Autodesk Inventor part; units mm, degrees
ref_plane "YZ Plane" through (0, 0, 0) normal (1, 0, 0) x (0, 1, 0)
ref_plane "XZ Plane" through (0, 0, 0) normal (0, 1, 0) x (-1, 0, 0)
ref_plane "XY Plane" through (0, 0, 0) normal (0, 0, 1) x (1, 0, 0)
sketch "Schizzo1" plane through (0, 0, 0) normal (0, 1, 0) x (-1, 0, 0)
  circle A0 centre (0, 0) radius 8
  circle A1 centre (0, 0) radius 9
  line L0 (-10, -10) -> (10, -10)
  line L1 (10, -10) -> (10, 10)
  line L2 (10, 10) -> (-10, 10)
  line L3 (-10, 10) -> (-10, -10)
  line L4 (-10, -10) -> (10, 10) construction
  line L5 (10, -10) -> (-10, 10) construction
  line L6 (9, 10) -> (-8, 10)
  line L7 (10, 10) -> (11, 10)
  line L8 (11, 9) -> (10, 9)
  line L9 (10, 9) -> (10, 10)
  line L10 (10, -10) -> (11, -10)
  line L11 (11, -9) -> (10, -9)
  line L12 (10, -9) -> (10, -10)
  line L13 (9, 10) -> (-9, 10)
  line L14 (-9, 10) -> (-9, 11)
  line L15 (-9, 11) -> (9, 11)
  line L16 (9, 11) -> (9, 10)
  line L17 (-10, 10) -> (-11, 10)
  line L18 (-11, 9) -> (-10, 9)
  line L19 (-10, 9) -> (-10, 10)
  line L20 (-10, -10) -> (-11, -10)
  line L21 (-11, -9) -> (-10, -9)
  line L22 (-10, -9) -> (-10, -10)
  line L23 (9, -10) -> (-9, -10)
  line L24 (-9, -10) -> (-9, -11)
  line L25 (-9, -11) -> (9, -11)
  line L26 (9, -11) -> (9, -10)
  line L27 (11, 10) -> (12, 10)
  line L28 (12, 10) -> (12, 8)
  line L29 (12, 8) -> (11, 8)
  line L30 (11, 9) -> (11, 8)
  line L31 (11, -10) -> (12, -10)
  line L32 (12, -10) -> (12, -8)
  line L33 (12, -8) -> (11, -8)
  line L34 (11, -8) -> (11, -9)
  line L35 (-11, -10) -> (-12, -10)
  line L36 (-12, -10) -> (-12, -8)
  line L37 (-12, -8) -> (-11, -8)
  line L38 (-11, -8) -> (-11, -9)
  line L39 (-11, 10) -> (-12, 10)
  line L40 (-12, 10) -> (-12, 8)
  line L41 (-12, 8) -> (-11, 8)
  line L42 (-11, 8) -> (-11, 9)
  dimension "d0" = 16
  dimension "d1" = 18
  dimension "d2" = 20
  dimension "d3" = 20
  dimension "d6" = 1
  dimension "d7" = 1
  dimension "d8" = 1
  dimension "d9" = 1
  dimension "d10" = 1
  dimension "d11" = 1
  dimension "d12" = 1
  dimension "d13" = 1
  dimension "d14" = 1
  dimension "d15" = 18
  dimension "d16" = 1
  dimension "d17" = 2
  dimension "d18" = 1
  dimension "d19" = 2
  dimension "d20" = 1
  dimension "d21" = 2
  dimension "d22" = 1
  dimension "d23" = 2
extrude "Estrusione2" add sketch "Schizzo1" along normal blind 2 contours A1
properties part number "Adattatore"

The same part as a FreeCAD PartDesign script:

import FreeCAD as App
import Part
import Sketcher

doc = App.newDocument("Part")
body = doc.addObject("PartDesign::Body", "Body")

# Sketch on XZ plane
sketch1 = body.newObject("Sketcher::SketchObject", "Sketch")
sketch1.AttachmentSupport = (doc.getObject("XZ_Plane"), [""])
sketch1.MapMode = "FlatFace"
sketch1.addGeometry(Part.Circle(App.Vector(0, 0, 0), App.Vector(0, 0, 1), 9), False)
sketch1.addGeometry(Part.Circle(App.Vector(0, 0, 0), App.Vector(0, 0, 1), 8), False)
sketch1.addConstraint(Sketcher.Constraint("Coincident", 0, 3, -1, 1))
sketch1.addConstraint(Sketcher.Constraint("Coincident", 1, 3, -1, 1))
sketch1.addConstraint(Sketcher.Constraint("Diameter", 0, 18.0))
sketch1.addConstraint(Sketcher.Constraint("Diameter", 1, 16.0))
pad1 = body.newObject("PartDesign::Pad", "Pad")
pad1.Profile = sketch1
pad1.Length = 2
pad1.Reversed = True

doc.recompute()
